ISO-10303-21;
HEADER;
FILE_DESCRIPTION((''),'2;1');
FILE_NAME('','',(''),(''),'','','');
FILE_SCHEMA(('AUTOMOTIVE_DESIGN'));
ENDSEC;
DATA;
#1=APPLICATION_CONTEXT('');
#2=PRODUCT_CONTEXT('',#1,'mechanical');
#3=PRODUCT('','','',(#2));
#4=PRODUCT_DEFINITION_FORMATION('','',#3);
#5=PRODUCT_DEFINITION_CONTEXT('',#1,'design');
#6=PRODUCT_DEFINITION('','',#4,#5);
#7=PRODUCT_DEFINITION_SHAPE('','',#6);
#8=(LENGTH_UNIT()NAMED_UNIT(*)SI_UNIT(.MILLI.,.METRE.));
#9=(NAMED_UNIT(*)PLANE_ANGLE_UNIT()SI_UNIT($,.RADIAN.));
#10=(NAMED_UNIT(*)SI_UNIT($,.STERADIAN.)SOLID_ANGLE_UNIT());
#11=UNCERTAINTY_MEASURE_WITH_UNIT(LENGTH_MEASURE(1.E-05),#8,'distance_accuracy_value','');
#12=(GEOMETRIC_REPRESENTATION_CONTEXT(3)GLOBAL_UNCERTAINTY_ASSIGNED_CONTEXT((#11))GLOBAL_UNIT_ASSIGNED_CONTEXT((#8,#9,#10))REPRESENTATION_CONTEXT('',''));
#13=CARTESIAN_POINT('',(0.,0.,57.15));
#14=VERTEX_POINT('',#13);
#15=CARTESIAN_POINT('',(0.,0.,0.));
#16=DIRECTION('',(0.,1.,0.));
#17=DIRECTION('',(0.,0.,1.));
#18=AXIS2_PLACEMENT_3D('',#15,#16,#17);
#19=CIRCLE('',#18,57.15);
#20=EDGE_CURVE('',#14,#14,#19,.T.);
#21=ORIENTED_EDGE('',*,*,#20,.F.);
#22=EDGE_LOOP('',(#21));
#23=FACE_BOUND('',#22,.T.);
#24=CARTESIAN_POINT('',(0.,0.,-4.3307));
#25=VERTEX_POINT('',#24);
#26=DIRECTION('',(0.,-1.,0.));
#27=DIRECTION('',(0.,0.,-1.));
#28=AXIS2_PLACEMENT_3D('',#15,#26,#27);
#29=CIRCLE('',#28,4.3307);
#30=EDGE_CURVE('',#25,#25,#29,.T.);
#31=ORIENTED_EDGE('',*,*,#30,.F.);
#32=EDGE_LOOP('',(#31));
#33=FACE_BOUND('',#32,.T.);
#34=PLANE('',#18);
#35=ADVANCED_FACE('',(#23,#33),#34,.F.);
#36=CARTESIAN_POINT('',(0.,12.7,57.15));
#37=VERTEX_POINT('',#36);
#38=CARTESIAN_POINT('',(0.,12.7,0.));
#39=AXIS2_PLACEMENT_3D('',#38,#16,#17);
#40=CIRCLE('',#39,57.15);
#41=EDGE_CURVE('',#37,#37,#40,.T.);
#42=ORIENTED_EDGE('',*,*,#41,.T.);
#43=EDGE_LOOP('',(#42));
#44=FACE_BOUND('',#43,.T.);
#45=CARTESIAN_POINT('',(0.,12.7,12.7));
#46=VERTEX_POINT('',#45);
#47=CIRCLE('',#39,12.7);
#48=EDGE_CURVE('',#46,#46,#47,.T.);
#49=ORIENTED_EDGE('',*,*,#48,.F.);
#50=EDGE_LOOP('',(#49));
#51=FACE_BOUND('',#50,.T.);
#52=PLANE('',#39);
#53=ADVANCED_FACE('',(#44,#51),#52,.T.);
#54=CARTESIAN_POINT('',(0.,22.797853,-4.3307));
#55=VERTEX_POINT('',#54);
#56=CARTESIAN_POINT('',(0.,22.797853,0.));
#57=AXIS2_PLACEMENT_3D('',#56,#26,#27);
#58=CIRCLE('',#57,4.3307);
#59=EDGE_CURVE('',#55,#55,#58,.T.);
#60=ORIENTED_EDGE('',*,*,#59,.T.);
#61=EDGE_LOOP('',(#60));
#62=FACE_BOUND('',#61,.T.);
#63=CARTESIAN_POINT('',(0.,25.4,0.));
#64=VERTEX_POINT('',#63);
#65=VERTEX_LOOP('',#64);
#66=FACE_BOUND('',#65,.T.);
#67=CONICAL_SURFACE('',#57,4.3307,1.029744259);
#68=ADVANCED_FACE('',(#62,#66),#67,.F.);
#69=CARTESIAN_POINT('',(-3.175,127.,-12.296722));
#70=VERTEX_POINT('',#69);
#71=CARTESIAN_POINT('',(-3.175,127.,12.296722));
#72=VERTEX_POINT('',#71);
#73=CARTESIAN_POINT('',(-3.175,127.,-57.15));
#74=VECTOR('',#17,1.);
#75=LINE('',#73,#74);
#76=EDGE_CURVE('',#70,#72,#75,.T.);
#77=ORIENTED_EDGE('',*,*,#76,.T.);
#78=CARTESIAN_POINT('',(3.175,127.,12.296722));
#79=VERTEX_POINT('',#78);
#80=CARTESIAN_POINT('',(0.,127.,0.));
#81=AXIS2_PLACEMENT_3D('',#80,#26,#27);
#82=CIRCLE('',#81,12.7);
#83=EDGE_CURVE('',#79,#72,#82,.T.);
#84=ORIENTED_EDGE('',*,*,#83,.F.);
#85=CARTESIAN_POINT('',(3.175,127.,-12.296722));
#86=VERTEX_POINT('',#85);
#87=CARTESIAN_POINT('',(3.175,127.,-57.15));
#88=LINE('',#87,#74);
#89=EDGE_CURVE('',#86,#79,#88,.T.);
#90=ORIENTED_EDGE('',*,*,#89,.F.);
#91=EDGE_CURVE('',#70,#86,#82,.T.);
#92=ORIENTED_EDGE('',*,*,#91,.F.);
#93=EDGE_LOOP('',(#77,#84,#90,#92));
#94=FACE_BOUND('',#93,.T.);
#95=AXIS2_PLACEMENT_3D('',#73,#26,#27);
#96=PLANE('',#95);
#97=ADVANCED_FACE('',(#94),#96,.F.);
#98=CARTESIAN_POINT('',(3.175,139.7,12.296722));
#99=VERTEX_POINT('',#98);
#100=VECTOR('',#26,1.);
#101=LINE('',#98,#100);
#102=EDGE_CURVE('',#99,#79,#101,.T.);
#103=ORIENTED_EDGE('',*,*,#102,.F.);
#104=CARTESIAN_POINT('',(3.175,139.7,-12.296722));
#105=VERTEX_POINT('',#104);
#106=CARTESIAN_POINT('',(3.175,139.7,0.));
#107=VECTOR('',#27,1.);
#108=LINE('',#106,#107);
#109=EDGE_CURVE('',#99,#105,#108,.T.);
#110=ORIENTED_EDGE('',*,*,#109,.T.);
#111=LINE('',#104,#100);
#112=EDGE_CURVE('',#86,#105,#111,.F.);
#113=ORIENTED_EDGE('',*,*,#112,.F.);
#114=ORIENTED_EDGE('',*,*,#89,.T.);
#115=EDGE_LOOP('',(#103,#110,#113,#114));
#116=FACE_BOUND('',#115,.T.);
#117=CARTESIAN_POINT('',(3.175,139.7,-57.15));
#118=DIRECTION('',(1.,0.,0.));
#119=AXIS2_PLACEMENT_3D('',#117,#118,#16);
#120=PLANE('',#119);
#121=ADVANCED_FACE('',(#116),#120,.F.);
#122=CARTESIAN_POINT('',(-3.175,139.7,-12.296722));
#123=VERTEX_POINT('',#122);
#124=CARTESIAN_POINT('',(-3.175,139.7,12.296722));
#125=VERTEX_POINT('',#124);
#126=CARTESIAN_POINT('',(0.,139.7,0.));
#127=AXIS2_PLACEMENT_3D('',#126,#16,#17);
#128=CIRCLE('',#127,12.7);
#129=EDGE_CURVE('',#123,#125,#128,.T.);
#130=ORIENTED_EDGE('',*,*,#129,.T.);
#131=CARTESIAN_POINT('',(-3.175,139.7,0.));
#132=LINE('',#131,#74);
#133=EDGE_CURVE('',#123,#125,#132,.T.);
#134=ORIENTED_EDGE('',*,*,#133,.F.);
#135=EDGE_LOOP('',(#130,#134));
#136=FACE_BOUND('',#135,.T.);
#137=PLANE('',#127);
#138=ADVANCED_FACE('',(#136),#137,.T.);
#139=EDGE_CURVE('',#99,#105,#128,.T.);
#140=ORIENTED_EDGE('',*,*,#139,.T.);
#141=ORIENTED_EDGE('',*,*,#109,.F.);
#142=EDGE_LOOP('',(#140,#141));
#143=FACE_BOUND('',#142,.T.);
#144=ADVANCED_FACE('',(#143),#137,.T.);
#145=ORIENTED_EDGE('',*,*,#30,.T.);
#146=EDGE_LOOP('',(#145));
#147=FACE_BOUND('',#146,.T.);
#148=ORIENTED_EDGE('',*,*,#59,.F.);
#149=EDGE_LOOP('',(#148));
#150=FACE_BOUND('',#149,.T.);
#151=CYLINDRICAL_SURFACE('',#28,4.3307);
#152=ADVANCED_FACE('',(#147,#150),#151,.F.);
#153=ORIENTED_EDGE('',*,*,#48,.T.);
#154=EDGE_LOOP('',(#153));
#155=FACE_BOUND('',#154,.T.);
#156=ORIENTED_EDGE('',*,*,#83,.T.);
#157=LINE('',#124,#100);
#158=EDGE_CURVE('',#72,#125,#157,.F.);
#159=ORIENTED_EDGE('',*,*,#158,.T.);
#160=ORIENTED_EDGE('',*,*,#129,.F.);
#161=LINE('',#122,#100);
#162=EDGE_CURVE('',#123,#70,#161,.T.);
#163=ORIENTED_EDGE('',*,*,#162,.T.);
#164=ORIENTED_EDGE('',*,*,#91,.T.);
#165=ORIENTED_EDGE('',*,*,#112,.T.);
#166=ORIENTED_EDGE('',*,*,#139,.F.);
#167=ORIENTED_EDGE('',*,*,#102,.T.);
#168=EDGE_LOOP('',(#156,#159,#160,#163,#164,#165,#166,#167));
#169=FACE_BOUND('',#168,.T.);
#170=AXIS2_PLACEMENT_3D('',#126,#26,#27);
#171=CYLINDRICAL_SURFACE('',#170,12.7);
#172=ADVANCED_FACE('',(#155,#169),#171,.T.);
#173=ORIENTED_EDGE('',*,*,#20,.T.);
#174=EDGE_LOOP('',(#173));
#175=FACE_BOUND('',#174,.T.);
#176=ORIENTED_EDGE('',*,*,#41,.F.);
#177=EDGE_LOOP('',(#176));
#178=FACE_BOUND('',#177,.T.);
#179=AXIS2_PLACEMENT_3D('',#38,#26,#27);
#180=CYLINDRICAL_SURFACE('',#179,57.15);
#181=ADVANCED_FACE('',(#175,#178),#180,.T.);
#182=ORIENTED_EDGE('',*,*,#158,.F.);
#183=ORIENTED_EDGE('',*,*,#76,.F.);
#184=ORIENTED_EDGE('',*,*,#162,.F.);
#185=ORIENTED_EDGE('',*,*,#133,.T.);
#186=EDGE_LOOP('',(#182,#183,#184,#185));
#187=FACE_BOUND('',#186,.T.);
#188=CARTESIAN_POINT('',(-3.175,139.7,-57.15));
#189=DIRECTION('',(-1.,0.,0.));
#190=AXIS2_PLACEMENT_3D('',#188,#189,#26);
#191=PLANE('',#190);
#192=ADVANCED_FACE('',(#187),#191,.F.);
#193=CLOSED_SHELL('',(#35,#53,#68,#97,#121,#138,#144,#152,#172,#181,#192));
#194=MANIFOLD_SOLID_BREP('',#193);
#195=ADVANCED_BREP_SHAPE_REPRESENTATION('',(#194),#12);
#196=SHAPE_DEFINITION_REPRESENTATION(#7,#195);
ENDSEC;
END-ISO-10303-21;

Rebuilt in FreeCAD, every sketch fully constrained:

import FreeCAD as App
import Part
import Sketcher
Q = App.Units.Quantity


def add_polygon(sketch, points):
    """Adds a closed chain of lines whose ends are joined by coincident constraints."""
    first, n = sketch.GeometryCount, len(points)
    for a, b in zip(points, points[1:] + points[:1]):
        sketch.addGeometry(Part.LineSegment(App.Vector(*a, 0), App.Vector(*b, 0)), False)
    for i in range(n):
        sketch.addConstraint(Sketcher.Constraint("Coincident", first + i, 2, first + (i + 1) % n, 1))

doc = App.newDocument("Part")
body = doc.addObject("PartDesign::Body", "Body")

sketch1 = body.newObject("Sketcher::SketchObject", "Sketch")
sketch1.AttachmentSupport = (doc.getObject("XZ_Plane"), [""])
sketch1.MapMode = "FlatFace"
sketch1.addGeometry(Part.Circle(App.Vector(0, 0, 0), App.Vector(0, 0, 1), 57.15), False)
sketch1.addConstraint([
    Sketcher.Constraint("Coincident", 0, 3, -1, 1),
    Sketcher.Constraint("Diameter", 0, Q("4.5 in")),
])
pad1 = body.newObject("PartDesign::Pad", "Pad")
pad1.Profile = sketch1
pad1.Length = Q("0.5 in")
pad1.Reversed = True

sketch2 = body.newObject("Sketcher::SketchObject", "Sketch001")
sketch2.AttachmentSupport = (doc.getObject("XZ_Plane"), [""])
sketch2.MapMode = "FlatFace"
sketch2.AttachmentOffset = App.Placement(App.Vector(0, 0, -0.5 * 25.4), App.Rotation())
sketch2.addGeometry(Part.Circle(App.Vector(0, 0, 0), App.Vector(0, 0, 1), 12.7), False)
sketch2.addConstraint([
    Sketcher.Constraint("Coincident", 0, 3, -1, 1),
    Sketcher.Constraint("Diameter", 0, Q("1 in")),
])
pad2 = body.newObject("PartDesign::Pad", "Pad001")
pad2.Profile = sketch2
pad2.Length = Q("5 in")
pad2.Reversed = True

sketch3 = body.newObject("Sketcher::SketchObject", "Sketch002")
sketch3.AttachmentSupport = (doc.getObject("XY_Plane"), [""])
sketch3.MapMode = "FlatFace"
add_polygon(sketch3, [(-3.175, 139.7), (-3.175, 127), (3.175, 127), (3.175, 139.7)])
sketch3.addConstraint([
    Sketcher.Constraint("Vertical", 0),
    Sketcher.Constraint("Horizontal", 1),
    Sketcher.Constraint("Vertical", 2),
    Sketcher.Constraint("Horizontal", 3),
    Sketcher.Constraint("DistanceY", 0, 2, 0, 1, Q("0.5 in")),
    Sketcher.Constraint("DistanceY", -1, 1, 0, 2, Q("5 in")),
    Sketcher.Constraint("DistanceX", 1, 1, 1, 2, Q("0.25 in")),
    Sketcher.Constraint("DistanceX", 0, 2, -1, 1, Q("0.125 in")),
])
pocket1 = body.newObject("PartDesign::Pocket", "Pocket")
pocket1.Profile = sketch3
pocket1.Type = "ThroughAll"
pocket1.Midplane = True

sketch4 = body.newObject("Sketcher::SketchObject", "Sketch003")
sketch4.AttachmentSupport = (doc.getObject("XZ_Plane"), [""])
sketch4.MapMode = "FlatFace"
sketch4.addGeometry(Part.Circle(App.Vector(0, 0, 0), App.Vector(0, 0, 1), 4.3307), False)
sketch4.addConstraint([
    Sketcher.Constraint("Coincident", 0, 3, -1, 1),
    Sketcher.Constraint("Diameter", 0, Q("0.341 in")),
])
doc.recompute()
hole = body.newObject("PartDesign::Hole", "Hole")
hole.Profile = sketch4
hole.ThreadType = "None"
hole.Diameter = Q("0.341 in")
hole.DepthType = "Dimension"
hole.Depth = 22.797853
hole.DrillPoint = "Angled"
hole.DrillPointAngle = 118

doc.recompute()
